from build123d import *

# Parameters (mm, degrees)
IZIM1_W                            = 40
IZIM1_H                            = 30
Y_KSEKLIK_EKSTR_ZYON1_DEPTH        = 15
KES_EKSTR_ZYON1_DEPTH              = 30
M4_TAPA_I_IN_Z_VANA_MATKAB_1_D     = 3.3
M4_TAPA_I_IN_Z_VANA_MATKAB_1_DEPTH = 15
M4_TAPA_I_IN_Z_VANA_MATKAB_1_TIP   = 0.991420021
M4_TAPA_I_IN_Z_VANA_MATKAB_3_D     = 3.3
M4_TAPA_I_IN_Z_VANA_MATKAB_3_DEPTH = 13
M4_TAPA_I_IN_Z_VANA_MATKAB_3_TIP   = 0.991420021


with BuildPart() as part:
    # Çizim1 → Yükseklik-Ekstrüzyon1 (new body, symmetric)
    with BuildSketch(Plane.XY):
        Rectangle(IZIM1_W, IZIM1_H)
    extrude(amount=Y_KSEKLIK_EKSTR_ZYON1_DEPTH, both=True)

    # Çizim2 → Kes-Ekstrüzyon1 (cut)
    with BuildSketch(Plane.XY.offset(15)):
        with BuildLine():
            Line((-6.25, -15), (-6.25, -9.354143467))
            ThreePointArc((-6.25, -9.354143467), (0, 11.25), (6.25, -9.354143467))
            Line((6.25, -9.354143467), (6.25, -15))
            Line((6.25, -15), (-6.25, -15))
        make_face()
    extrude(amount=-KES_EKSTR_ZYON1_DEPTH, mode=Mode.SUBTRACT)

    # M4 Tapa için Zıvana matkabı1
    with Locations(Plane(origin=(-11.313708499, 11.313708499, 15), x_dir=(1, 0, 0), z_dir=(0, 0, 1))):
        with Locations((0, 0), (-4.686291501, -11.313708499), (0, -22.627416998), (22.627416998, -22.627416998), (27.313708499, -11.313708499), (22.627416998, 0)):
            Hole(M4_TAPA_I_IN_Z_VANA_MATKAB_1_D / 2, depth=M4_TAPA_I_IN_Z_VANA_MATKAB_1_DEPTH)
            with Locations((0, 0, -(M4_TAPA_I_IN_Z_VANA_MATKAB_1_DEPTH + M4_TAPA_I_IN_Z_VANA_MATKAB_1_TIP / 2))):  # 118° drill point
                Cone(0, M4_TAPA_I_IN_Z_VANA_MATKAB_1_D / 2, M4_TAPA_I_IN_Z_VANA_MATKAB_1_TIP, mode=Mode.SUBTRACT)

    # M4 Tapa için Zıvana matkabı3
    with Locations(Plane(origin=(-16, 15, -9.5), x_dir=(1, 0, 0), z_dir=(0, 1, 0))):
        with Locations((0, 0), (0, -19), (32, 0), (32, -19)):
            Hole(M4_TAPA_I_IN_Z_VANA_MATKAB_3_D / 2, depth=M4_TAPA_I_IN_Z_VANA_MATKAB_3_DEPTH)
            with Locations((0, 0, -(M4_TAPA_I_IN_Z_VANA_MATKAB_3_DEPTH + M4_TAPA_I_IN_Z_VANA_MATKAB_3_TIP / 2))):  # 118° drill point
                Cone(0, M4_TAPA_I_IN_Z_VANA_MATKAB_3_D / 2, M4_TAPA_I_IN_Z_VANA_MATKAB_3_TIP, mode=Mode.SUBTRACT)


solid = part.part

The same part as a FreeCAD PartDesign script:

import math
import FreeCAD as App
import Part
import Sketcher

V = App.Vector

doc = App.newDocument("Part")
params = doc.addObject("Spreadsheet::Sheet", "Params")
for row, (alias, value) in enumerate([
    ("sketch1_width", "40 mm"),
    ("sketch1_height", "30 mm"),
    ("pad1_length", "30 mm"),
    ("sketch2_radius", "11.25 mm"),
    ("sketch2_width", "12.5 mm"),
    ("pocket1_length", "30 mm"),
    ("sketch3_diameter", "3.3 mm"),
    ("hole_diameter", "3.3 mm"),
    ("hole_depth", "15 mm"),
    ("sketch4_diameter", "3.3 mm"),
    ("hole2_diameter", "3.3 mm"),
    ("hole2_depth", "13 mm"),
], start=1):
    params.set(f"A{row}", alias)
    params.set(f"B{row}", "=" + value)
    params.setAlias(f"B{row}", alias)

body = doc.addObject("PartDesign::Body", "Body")

# Sketch on XY plane
sketch1 = doc.addObject("Sketcher::SketchObject", "Sketch")
body.addObject(sketch1)
sketch1.AttachmentSupport = (doc.XY_Plane, [""])
sketch1.MapMode = "FlatFace"
sketch1.addGeometry(Part.LineSegment(V(-20, 15, 0), V(-20, -15, 0)), False)
sketch1.addGeometry(Part.LineSegment(V(-20, -15, 0), V(20, -15, 0)), False)
sketch1.addGeometry(Part.LineSegment(V(20, -15, 0), V(20, 15, 0)), False)
sketch1.addGeometry(Part.LineSegment(V(20, 15, 0), V(-20, 15, 0)), False)
sketch1.addConstraint(Sketcher.Constraint("Coincident", 0, 2, 1, 1))
sketch1.addConstraint(Sketcher.Constraint("Coincident", 1, 2, 2, 1))
sketch1.addConstraint(Sketcher.Constraint("Coincident", 2, 2, 3, 1))
sketch1.addConstraint(Sketcher.Constraint("Coincident", 3, 2, 0, 1))
sketch1.addConstraint(Sketcher.Constraint("Vertical", 0))
sketch1.addConstraint(Sketcher.Constraint("Horizontal", 1))
sketch1.addConstraint(Sketcher.Constraint("Vertical", 2))
sketch1.addConstraint(Sketcher.Constraint("Horizontal", 3))
sketch1.addConstraint(Sketcher.Constraint("Symmetric", 0, 2, 2, 2, -1, 1))
sketch1.addConstraint(Sketcher.Constraint("DistanceX", 1, 1, 1, 2, 40.0))
sketch1.addConstraint(Sketcher.Constraint("DistanceY", 0, 2, 0, 1, 30.0))
sketch1.setExpression("Constraints[9]", "Params.sketch1_width")
sketch1.setExpression("Constraints[10]", "Params.sketch1_height")
pad1 = doc.addObject("PartDesign::Pad", "Pad")
body.addObject(pad1)
pad1.Profile = sketch1
pad1.setExpression("Length", "Params.pad1_length")
pad1.Midplane = True

# Sketch on XY plane
sketch2 = doc.addObject("Sketcher::SketchObject", "Sketch001")
body.addObject(sketch2)
sketch2.AttachmentSupport = (doc.XY_Plane, [""])
sketch2.MapMode = "FlatFace"
sketch2.AttachmentOffset = App.Placement(V(0, 0, 15), App.Rotation())
sketch2.addGeometry(Part.LineSegment(V(-6.25, -9.354143, 0), V(-6.25, -15, 0)), False)
sketch2.addGeometry(Part.LineSegment(V(-6.25, -15, 0), V(6.25, -15, 0)), False)
sketch2.addGeometry(Part.LineSegment(V(6.25, -15, 0), V(6.25, -9.354143, 0)), False)
sketch2.addGeometry(Part.ArcOfCircle(Part.Circle(V(0, 0, 0), V(0, 0, 1), 11.25), math.radians(-56.251011), math.radians(236.251011)), False)
sketch2.addConstraint(Sketcher.Constraint("Coincident", 0, 2, 1, 1))
sketch2.addConstraint(Sketcher.Constraint("Coincident", 1, 2, 2, 1))
sketch2.addConstraint(Sketcher.Constraint("Coincident", 2, 2, 3, 1))
sketch2.addConstraint(Sketcher.Constraint("Coincident", 3, 2, 0, 1))
sketch2.addConstraint(Sketcher.Constraint("Vertical", 0))
sketch2.addConstraint(Sketcher.Constraint("Horizontal", 1))
sketch2.addConstraint(Sketcher.Constraint("Vertical", 2))
sketch2.addConstraint(Sketcher.Constraint("Coincident", 3, 3, -1, 1))
sketch2.addConstraint(Sketcher.Constraint("Horizontal", 2, 2, 3, 2))
sketch2.addConstraint(Sketcher.Constraint("Radius", 3, 11.25))
sketch2.addConstraint(Sketcher.Constraint("DistanceX", 1, 1, 1, 2, 12.5))
sketch2.addConstraint(Sketcher.Constraint("DistanceY", 0, 2, -1, 1, 15.0))
sketch2.setExpression("Constraints[9]", "Params.sketch2_radius")
sketch2.setExpression("Constraints[10]", "Params.sketch2_width")
pocket1 = doc.addObject("PartDesign::Pocket", "Pocket")
body.addObject(pocket1)
pocket1.Profile = sketch2
pocket1.setExpression("Length", "Params.pocket1_length")

# Sketch on XY plane
sketch3 = doc.addObject("Sketcher::SketchObject", "Sketch002")
body.addObject(sketch3)
sketch3.AttachmentSupport = (doc.XY_Plane, [""])
sketch3.MapMode = "FlatFace"
sketch3.AttachmentOffset = App.Placement(V(0, 0, 15), App.Rotation())
sketch3.addGeometry(Part.Circle(V(-11.313708, 11.313708, 0), V(0, 0, 1), 1.65), False)
sketch3.addGeometry(Part.Circle(V(-16, 0, 0), V(0, 0, 1), 1.65), False)
sketch3.addGeometry(Part.Circle(V(-11.313708, -11.313708, 0), V(0, 0, 1), 1.65), False)
sketch3.addGeometry(Part.Circle(V(11.313708, -11.313708, 0), V(0, 0, 1), 1.65), False)
sketch3.addGeometry(Part.Circle(V(16, 0, 0), V(0, 0, 1), 1.65), False)
sketch3.addGeometry(Part.Circle(V(11.313708, 11.313708, 0), V(0, 0, 1), 1.65), False)
sketch3.addConstraint(Sketcher.Constraint("Equal", 0, 1))
sketch3.addConstraint(Sketcher.Constraint("Equal", 1, 2))
sketch3.addConstraint(Sketcher.Constraint("Equal", 2, 3))
sketch3.addConstraint(Sketcher.Constraint("Equal", 3, 4))
sketch3.addConstraint(Sketcher.Constraint("Equal", 4, 5))
sketch3.addConstraint(Sketcher.Constraint("Symmetric", 0, 3, 3, 3, -1, 1))
sketch3.addConstraint(Sketcher.Constraint("Symmetric", 1, 3, 4, 3, -1, 1))
sketch3.addConstraint(Sketcher.Constraint("Symmetric", 2, 3, 5, 3, -1, 1))
sketch3.addConstraint(Sketcher.Constraint("Symmetric", 2, 3, 3, 3, -2))
sketch3.addConstraint(Sketcher.Constraint("PointOnObject", 1, 3, -1))
sketch3.addConstraint(Sketcher.Constraint("Diameter", 0, 3.3))
sketch3.addConstraint(Sketcher.Constraint("DistanceX", 1, 3, -1, 1, 16.0))
sketch3.addConstraint(Sketcher.Constraint("DistanceX", 0, 3, -1, 1, 11.313708))
sketch3.addConstraint(Sketcher.Constraint("DistanceY", -1, 1, 0, 3, 11.313708))
sketch3.setExpression("Constraints[10]", "Params.sketch3_diameter")
doc.recompute()
hole = doc.addObject("PartDesign::Hole", "Hole")
body.addObject(hole)
hole.Profile = sketch3
hole.ThreadType = "None"
hole.setExpression("Diameter", "Params.hole_diameter")
hole.DepthType = "Dimension"
hole.setExpression("Depth", "Params.hole_depth")
hole.DrillPoint = "Angled"
hole.DrillPointAngle = 118

# Sketch on XZ plane
sketch4 = doc.addObject("Sketcher::SketchObject", "Sketch003")
body.addObject(sketch4)
sketch4.AttachmentSupport = (doc.XZ_Plane, [""])
sketch4.MapMode = "FlatFace"
sketch4.AttachmentOffset = App.Placement(V(0, 0, -15), App.Rotation())
sketch4.addGeometry(Part.Circle(V(-16, -9.5, 0), V(0, 0, 1), 1.65), False)
sketch4.addGeometry(Part.Circle(V(-16, 9.5, 0), V(0, 0, 1), 1.65), False)
sketch4.addGeometry(Part.Circle(V(16, -9.5, 0), V(0, 0, 1), 1.65), False)
sketch4.addGeometry(Part.Circle(V(16, 9.5, 0), V(0, 0, 1), 1.65), False)
sketch4.addConstraint(Sketcher.Constraint("Equal", 0, 1))
sketch4.addConstraint(Sketcher.Constraint("Equal", 1, 2))
sketch4.addConstraint(Sketcher.Constraint("Equal", 2, 3))
sketch4.addConstraint(Sketcher.Constraint("Symmetric", 1, 3, 2, 3, -1, 1))
sketch4.addConstraint(Sketcher.Constraint("Symmetric", 0, 3, 3, 3, -1, 1))
sketch4.addConstraint(Sketcher.Constraint("Symmetric", 0, 3, 2, 3, -2))
sketch4.addConstraint(Sketcher.Constraint("Diameter", 0, 3.3))
sketch4.addConstraint(Sketcher.Constraint("DistanceX", 0, 3, -1, 1, 16.0))
sketch4.addConstraint(Sketcher.Constraint("DistanceY", 0, 3, 1, 3, 19.0))
sketch4.setExpression("Constraints[6]", "Params.sketch4_diameter")
doc.recompute()
hole2 = doc.addObject("PartDesign::Hole", "Hole001")
body.addObject(hole2)
hole2.Profile = sketch4
hole2.ThreadType = "None"
hole2.setExpression("Diameter", "Params.hole2_diameter")
hole2.DepthType = "Dimension"
hole2.setExpression("Depth", "Params.hole2_depth")
hole2.DrillPoint = "Angled"
hole2.DrillPointAngle = 118
hole2.Reversed = True

doc.recompute()
